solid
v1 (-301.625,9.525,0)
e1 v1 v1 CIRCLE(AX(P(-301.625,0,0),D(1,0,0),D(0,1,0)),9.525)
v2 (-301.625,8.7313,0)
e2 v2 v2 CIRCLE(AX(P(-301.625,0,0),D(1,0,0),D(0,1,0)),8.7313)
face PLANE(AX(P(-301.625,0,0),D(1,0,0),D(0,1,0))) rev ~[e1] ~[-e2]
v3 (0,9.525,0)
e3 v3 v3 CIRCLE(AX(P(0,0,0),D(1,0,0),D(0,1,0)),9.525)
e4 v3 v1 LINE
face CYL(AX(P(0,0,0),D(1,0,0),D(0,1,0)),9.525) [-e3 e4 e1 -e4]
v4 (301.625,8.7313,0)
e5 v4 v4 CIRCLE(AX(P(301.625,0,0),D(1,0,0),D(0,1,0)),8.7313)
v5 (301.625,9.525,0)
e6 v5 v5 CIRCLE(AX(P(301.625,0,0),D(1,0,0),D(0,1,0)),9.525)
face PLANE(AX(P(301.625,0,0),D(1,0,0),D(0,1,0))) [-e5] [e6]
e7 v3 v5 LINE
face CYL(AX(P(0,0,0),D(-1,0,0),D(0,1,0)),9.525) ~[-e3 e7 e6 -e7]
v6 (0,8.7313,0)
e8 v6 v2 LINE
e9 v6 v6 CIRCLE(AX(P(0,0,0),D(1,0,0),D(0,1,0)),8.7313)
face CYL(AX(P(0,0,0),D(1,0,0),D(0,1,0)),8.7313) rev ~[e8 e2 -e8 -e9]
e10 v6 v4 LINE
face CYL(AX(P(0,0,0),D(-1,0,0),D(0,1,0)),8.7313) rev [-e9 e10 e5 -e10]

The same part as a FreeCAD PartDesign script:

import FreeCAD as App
import Part
import Sketcher
Q = App.Units.Quantity

doc = App.newDocument("Part")
body = doc.addObject("PartDesign::Body", "Body")

# Sketch on YZ plane
sketch1 = body.newObject("Sketcher::SketchObject", "Sketch")
sketch1.AttachmentSupport = (doc.getObject("YZ_Plane"), [""])
sketch1.MapMode = "FlatFace"
sketch1.addGeometry([
    Part.Circle(App.Vector(0, 0, 0), App.Vector(0, 0, 1), 10),
    Part.Circle(App.Vector(0, 0, 0), App.Vector(0, 0, 1), 9),
], False)
sketch1.addConstraint([
    Sketcher.Constraint("Coincident", 0, 3, -1, 1),
    Sketcher.Constraint("Coincident", 1, 3, -1, 1),
    Sketcher.Constraint("Diameter", 0, Q("0.75 in")),
    Sketcher.Constraint("Diameter", 1, Q("0.6875 in")),
])
pad1 = body.newObject("PartDesign::Pad", "Pad")
pad1.Profile = sketch1
pad1.Length = Q("23.75 in")
pad1.Midplane = True

doc.recompute()
